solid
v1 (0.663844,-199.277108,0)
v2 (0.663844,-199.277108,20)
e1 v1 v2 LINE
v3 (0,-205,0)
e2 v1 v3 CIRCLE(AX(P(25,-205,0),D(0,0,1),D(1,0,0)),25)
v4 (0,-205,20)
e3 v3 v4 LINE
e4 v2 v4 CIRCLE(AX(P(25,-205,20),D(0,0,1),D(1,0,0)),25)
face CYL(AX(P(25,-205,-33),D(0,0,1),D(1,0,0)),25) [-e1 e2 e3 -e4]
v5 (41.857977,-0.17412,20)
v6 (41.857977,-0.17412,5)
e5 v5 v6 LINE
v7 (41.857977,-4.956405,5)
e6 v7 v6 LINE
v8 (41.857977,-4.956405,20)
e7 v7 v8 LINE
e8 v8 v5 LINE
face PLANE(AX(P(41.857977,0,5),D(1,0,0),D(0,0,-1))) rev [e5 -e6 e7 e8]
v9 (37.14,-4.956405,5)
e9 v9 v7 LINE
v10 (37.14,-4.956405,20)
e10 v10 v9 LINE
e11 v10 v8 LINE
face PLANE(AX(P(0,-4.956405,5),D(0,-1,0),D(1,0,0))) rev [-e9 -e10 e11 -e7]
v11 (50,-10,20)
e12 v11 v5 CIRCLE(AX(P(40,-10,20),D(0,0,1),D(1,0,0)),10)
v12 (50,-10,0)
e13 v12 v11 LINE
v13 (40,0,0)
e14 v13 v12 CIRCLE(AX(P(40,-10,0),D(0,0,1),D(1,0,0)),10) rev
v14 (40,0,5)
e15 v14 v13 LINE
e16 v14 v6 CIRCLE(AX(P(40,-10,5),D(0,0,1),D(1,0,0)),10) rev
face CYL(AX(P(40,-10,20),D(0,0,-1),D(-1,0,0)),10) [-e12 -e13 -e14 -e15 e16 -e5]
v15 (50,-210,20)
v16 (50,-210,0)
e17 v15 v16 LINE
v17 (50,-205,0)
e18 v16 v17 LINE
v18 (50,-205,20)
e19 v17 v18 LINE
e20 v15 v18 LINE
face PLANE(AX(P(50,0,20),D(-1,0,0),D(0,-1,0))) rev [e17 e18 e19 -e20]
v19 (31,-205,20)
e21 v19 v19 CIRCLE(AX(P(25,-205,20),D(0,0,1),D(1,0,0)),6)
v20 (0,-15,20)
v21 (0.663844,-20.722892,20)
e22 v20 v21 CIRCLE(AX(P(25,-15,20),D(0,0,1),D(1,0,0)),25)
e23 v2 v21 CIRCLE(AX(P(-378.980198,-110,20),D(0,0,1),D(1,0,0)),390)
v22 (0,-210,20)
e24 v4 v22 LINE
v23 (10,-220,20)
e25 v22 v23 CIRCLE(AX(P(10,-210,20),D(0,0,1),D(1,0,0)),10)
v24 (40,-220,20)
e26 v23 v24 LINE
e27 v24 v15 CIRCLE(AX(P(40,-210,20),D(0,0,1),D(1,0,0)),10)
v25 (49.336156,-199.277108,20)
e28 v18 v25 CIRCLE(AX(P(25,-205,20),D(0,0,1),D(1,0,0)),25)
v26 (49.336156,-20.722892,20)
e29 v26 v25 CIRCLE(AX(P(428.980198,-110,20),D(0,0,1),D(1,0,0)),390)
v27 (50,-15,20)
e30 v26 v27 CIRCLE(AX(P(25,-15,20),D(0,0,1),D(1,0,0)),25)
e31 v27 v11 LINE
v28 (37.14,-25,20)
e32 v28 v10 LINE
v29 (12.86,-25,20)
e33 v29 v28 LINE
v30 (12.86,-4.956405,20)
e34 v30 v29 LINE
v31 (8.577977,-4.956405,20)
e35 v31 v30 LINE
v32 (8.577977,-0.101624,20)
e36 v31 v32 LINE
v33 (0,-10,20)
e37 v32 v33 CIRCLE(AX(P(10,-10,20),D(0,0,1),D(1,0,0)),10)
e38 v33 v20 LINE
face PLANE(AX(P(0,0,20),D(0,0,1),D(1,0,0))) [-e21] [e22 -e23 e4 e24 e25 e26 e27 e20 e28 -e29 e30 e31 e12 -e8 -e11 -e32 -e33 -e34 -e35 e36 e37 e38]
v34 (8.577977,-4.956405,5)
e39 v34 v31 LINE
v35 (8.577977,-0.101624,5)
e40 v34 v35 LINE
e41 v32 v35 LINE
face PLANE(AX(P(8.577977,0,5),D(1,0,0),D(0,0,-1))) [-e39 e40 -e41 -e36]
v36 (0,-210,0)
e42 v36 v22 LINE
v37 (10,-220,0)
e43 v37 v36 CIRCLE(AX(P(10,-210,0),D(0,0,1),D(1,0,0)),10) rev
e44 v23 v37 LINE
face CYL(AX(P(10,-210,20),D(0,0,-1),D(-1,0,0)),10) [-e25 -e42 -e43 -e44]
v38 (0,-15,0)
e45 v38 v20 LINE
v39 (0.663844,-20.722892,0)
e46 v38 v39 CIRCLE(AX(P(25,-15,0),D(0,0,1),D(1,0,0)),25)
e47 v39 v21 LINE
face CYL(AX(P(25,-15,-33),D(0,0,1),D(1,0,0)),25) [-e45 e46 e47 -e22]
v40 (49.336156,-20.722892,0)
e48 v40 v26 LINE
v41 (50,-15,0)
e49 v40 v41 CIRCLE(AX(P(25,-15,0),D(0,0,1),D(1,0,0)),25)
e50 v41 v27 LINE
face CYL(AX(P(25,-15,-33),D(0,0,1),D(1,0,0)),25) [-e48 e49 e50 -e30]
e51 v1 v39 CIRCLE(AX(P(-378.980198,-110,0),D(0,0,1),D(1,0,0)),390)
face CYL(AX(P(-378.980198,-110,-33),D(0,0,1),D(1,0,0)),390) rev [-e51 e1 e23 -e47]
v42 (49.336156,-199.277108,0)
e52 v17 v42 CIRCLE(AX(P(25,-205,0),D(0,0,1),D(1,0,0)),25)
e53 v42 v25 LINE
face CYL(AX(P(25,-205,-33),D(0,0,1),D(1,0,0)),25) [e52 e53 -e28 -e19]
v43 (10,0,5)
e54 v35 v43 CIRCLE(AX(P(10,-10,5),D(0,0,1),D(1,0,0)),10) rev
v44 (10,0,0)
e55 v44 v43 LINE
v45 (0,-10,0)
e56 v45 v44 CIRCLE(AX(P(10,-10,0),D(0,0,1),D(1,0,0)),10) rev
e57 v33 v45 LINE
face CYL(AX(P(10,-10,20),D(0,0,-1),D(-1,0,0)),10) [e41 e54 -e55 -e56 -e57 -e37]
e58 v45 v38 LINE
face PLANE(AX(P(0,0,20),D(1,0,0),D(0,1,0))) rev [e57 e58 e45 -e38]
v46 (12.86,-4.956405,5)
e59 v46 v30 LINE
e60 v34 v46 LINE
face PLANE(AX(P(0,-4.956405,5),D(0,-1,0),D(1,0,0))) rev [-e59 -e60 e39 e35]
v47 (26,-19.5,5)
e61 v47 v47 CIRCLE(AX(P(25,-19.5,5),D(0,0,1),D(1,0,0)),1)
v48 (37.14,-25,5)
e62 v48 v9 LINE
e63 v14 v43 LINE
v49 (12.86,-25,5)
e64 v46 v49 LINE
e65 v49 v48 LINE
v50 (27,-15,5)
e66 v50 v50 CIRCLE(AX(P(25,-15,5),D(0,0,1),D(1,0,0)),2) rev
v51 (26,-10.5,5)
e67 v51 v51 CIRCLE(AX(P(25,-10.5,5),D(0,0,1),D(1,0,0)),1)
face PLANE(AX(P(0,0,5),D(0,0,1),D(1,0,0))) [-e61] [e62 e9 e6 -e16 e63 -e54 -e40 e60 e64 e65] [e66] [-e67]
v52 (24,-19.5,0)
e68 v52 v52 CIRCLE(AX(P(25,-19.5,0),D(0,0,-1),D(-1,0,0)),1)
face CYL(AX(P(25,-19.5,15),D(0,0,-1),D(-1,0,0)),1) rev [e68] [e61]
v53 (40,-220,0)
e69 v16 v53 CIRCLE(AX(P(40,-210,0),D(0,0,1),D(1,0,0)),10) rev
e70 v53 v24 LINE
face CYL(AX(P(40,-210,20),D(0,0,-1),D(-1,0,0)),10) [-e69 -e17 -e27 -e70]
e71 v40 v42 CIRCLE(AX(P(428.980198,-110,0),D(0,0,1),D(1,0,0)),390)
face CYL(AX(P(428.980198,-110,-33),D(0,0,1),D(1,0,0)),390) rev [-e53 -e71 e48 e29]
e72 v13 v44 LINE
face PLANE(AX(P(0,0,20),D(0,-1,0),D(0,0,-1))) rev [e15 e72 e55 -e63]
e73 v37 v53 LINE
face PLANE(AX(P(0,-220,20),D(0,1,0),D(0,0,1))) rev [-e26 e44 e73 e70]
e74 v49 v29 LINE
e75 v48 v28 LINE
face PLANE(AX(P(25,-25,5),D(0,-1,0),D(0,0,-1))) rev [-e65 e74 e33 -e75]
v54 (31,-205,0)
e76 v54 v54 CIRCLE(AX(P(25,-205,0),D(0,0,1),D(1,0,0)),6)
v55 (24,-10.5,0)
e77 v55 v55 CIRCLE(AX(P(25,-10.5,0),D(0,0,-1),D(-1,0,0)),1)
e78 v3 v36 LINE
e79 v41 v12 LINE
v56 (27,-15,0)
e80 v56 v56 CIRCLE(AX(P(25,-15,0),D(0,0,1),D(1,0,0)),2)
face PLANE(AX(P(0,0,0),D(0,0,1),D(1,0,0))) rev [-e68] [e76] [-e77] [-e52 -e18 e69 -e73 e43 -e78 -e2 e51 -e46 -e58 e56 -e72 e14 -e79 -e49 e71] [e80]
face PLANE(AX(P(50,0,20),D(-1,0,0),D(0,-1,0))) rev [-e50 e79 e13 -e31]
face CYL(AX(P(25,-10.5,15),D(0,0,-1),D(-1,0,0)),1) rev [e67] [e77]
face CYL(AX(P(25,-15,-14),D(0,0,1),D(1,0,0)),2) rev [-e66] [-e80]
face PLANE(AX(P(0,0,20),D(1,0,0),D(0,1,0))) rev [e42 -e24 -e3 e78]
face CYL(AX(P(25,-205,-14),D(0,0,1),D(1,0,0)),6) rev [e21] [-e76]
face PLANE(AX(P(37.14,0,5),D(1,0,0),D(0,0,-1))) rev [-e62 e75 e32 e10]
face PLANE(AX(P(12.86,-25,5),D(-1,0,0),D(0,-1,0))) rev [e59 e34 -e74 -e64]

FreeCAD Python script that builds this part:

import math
import FreeCAD as App
import Part
import Sketcher
from FreeCAD import Vector
Q = App.Units.Quantity


def edges_at(feature, points):
    """Names of the edges that pass closest to the given points."""
    edges = feature.Shape.Edges
    near = lambda p: min(range(len(edges)), key=lambda i: edges[i].distToShape(Part.Vertex(*p))[0])
    return sorted({f"Edge{near(p) + 1}" for p in points})


def add_polygon(sketch, points):
    """Adds a closed chain of lines whose ends are joined by coincident constraints."""
    first, n = sketch.GeometryCount, len(points)
    for a, b in zip(points, points[1:] + points[:1]):
        sketch.addGeometry(Part.LineSegment(App.Vector(*a, 0), App.Vector(*b, 0)), False)
    for i in range(n):
        sketch.addConstraint(Sketcher.Constraint("Coincident", first + i, 2, first + (i + 1) % n, 1))

doc = App.newDocument("Part")
body = doc.addObject("PartDesign::Body", "Body")

sketch1 = body.newObject("Sketcher::SketchObject", "Sketch")
sketch1.AttachmentSupport = (doc.getObject("XY_Plane"), [""])
sketch1.MapMode = "FlatFace"
add_polygon(sketch1, [(0, 0), (0, -220), (50, -220), (50, 0)])
sketch1.addConstraint(Sketcher.Constraint("Vertical", 0))
sketch1.addConstraint(Sketcher.Constraint("Horizontal", 1))
sketch1.addConstraint(Sketcher.Constraint("Vertical", 2))
sketch1.addConstraint(Sketcher.Constraint("Horizontal", 3))
sketch1.addConstraint(Sketcher.Constraint("Coincident", 3, 2, -1, 1))
sketch1.addConstraint(Sketcher.Constraint("DistanceX", 1, 1, 1, 2, Q("50 mm")))
sketch1.addConstraint(Sketcher.Constraint("DistanceY", 0, 2, 0, 1, Q("220 mm")))
pad1 = body.newObject("PartDesign::Pad", "Pad")
pad1.Profile = sketch1
pad1.Length = 20

sketch2 = body.newObject("Sketcher::SketchObject", "Sketch001")
sketch2.AttachmentSupport = (doc.getObject("XY_Plane"), [""])
sketch2.MapMode = "FlatFace"
sketch2.AttachmentOffset = App.Placement(Vector(0, 0, 20), App.Rotation())
sketch2.addGeometry(Part.Circle(Vector(25, -15, 0), Vector(0, 0, 1), 2), False)
sketch2.addGeometry(Part.Circle(Vector(25, -205, 0), Vector(0, 0, 1), 6), False)
sketch2.addConstraint(Sketcher.Constraint("Vertical", 0, 3, 1, 3))
sketch2.addConstraint(Sketcher.Constraint("Diameter", 0, Q("4 mm")))
sketch2.addConstraint(Sketcher.Constraint("Diameter", 1, Q("12 mm")))
sketch2.addConstraint(Sketcher.Constraint("DistanceX", -1, 1, 0, 3, Q("25 mm")))
sketch2.addConstraint(Sketcher.Constraint("DistanceY", 0, 3, -1, 1, Q("15 mm")))
sketch2.addConstraint(Sketcher.Constraint("DistanceY", 1, 3, -1, 1, Q("205 mm")))
pocket1 = body.newObject("PartDesign::Pocket", "Pocket")
pocket1.Profile = sketch2
pocket1.Length = 34
doc.recompute()

fillet = body.newObject("PartDesign::Fillet", "Fillet")
fillet.Base = (pocket1, edges_at(pocket1, [
    (0, 0, 10),
    (50, 0, 10),
    (50, -220, 10),
    (0, -220, 10),
]))
fillet.Radius = 10

sketch3 = body.newObject("Sketcher::SketchObject", "Sketch002")
sketch3.AttachmentSupport = (doc.getObject("XY_Plane"), [""])
sketch3.MapMode = "FlatFace"
sketch3.AttachmentOffset = App.Placement(Vector(0, 0, 20), App.Rotation())
add_polygon(sketch3, [(37, -25), (37, 0), (13, 0), (13, -25)])
sketch3.addConstraint(Sketcher.Constraint("Vertical", 0))
sketch3.addConstraint(Sketcher.Constraint("Horizontal", 1))
sketch3.addConstraint(Sketcher.Constraint("Vertical", 2))
sketch3.addConstraint(Sketcher.Constraint("Horizontal", 3))
sketch3.addConstraint(Sketcher.Constraint("PointOnObject", 0, 2, -1))
sketch3.addConstraint(Sketcher.Constraint("DistanceY", 0, 1, 0, 2, Q("25 mm")))
sketch3.addConstraint(Sketcher.Constraint("DistanceX", 1, 2, 1, 1, Q("24.28 mm")))
sketch3.addConstraint(Sketcher.Constraint("DistanceX", -1, 1, 0, 2, Q("37.14 mm")))
pocket2 = body.newObject("PartDesign::Pocket", "Pocket001")
pocket2.Profile = sketch3
pocket2.Length = 15

sketch4 = body.newObject("Sketcher::SketchObject", "Sketch003")
sketch4.AttachmentSupport = (doc.getObject("XY_Plane"), [""])
sketch4.MapMode = "FlatFace"
sketch4.addGeometry(Part.Circle(Vector(25, -10.5, 0), Vector(0, 0, 1), 1), False)
sketch4.addGeometry(Part.Circle(Vector(25, -19.5, 0), Vector(0, 0, 1), 1), False)
sketch4.addConstraint(Sketcher.Constraint("Equal", 0, 1))
sketch4.addConstraint(Sketcher.Constraint("Vertical", 0, 3, 1, 3))
sketch4.addConstraint(Sketcher.Constraint("Diameter", 0, Q("2 mm")))
sketch4.addConstraint(Sketcher.Constraint("DistanceX", -1, 1, 0, 3, Q("25 mm")))
sketch4.addConstraint(Sketcher.Constraint("DistanceY", 1, 3, 0, 3, Q("9 mm")))
sketch4.addConstraint(Sketcher.Constraint("DistanceY", 0, 3, -1, 1, Q("10.5 mm")))
pocket3 = body.newObject("PartDesign::Pocket", "Pocket002")
pocket3.Profile = sketch4
pocket3.Length = 15
pocket3.Reversed = True

sketch5 = body.newObject("Sketcher::SketchObject", "Sketch004")
sketch5.AttachmentSupport = (doc.getObject("XY_Plane"), [""])
sketch5.MapMode = "FlatFace"
sketch5.AttachmentOffset = App.Placement(Vector(0, 0, 20), App.Rotation())
add_polygon(sketch5, [(42, 3), (9, 3), (9, -5), (42, -5)])
sketch5.addConstraint(Sketcher.Constraint("Horizontal", 0))
sketch5.addConstraint(Sketcher.Constraint("Vertical", 1))
sketch5.addConstraint(Sketcher.Constraint("Horizontal", 2))
sketch5.addConstraint(Sketcher.Constraint("Vertical", 3))
sketch5.addConstraint(Sketcher.Constraint("DistanceX", 0, 2, 0, 1, Q("33.28 mm")))
sketch5.addConstraint(Sketcher.Constraint("DistanceY", 1, 2, 1, 1, Q("8.147672 mm")))
sketch5.addConstraint(Sketcher.Constraint("DistanceX", -1, 1, 0, 2, Q("8.577977 mm")))
sketch5.addConstraint(Sketcher.Constraint("DistanceY", -1, 1, 0, 2, Q("3.191268 mm")))
pocket4 = body.newObject("PartDesign::Pocket", "Pocket003")
pocket4.Profile = sketch5
pocket4.Length = 15

sketch6 = body.newObject("Sketcher::SketchObject", "Sketch005")
sketch6.AttachmentSupport = (doc.getObject("XY_Plane"), [""])
sketch6.MapMode = "FlatFace"
sketch6.AttachmentOffset = App.Placement(Vector(0, 0, 20), App.Rotation())
sketch6.addGeometry(Part.ArcOfCircle(Part.Circle(Vector(25, -205, 0), Vector(0, 0, 1), 25), math.radians(0), math.radians(13.23)), False)
sketch6.addGeometry(Part.LineSegment(Vector(50, -205, 0), Vector(50, -15, 0)), False)
sketch6.addGeometry(Part.ArcOfCircle(Part.Circle(Vector(25, -15, 0), Vector(0, 0, 1), 25), math.radians(-13.23), math.radians(0)), False)
sketch6.addGeometry(Part.ArcOfCircle(Part.Circle(Vector(429, -110, 0), Vector(0, 0, 1), 390), math.radians(167), math.radians(193)), False)
sketch6.addGeometry(Part.ArcOfCircle(Part.Circle(Vector(25, -205, 0), Vector(0, 0, 1), 25), math.radians(166.77), math.radians(180)), False)
sketch6.addGeometry(Part.ArcOfCircle(Part.Circle(Vector(-379, -110, 0), Vector(0, 0, 1), 390), math.radians(-13), math.radians(13)), False)
sketch6.addGeometry(Part.ArcOfCircle(Part.Circle(Vector(25, -15, 0), Vector(0, 0, 1), 25), math.radians(180), math.radians(193.23)), False)
sketch6.addGeometry(Part.LineSegment(Vector(0, -15, 0), Vector(0, -205, 0)), False)
sketch6.addConstraint(Sketcher.Constraint("Tangent", 0, 1, 1, 1))
sketch6.addConstraint(Sketcher.Constraint("Tangent", 1, 2, 2, 2))
sketch6.addConstraint(Sketcher.Constraint("Tangent", 2, 1, 3, 1))
sketch6.addConstraint(Sketcher.Constraint("Tangent", 3, 2, 0, 2))
sketch6.addConstraint(Sketcher.Constraint("Tangent", 4, 1, 5, 1))
sketch6.addConstraint(Sketcher.Constraint("Tangent", 5, 2, 6, 2))
sketch6.addConstraint(Sketcher.Constraint("Tangent", 6, 1, 7, 1))
sketch6.addConstraint(Sketcher.Constraint("Tangent", 7, 2, 4, 2))
sketch6.addConstraint(Sketcher.Constraint("Vertical", 1))
sketch6.addConstraint(Sketcher.Constraint("Vertical", 7))
sketch6.addConstraint(Sketcher.Constraint("Coincident", 4, 3, 0, 3))
sketch6.addConstraint(Sketcher.Constraint("Coincident", 6, 3, 2, 3))
sketch6.addConstraint(Sketcher.Constraint("Equal", 0, 2))
sketch6.addConstraint(Sketcher.Constraint("Equal", 2, 4))
sketch6.addConstraint(Sketcher.Constraint("Equal", 3, 5))
sketch6.addConstraint(Sketcher.Constraint("PointOnObject", 6, 1, -2))
sketch6.addConstraint(Sketcher.Constraint("Radius", 0, Q("25 mm")))
sketch6.addConstraint(Sketcher.Constraint("Radius", 3, Q("390 mm")))
sketch6.addConstraint(Sketcher.Constraint("DistanceY", 1, 1, 1, 2, Q("190 mm")))
sketch6.addConstraint(Sketcher.Constraint("DistanceY", 0, 3, -1, 1, Q("205 mm")))
pocket5 = body.newObject("PartDesign::Pocket", "Pocket004")
pocket5.Profile = sketch6
pocket5.Length = 53

doc.recompute()
